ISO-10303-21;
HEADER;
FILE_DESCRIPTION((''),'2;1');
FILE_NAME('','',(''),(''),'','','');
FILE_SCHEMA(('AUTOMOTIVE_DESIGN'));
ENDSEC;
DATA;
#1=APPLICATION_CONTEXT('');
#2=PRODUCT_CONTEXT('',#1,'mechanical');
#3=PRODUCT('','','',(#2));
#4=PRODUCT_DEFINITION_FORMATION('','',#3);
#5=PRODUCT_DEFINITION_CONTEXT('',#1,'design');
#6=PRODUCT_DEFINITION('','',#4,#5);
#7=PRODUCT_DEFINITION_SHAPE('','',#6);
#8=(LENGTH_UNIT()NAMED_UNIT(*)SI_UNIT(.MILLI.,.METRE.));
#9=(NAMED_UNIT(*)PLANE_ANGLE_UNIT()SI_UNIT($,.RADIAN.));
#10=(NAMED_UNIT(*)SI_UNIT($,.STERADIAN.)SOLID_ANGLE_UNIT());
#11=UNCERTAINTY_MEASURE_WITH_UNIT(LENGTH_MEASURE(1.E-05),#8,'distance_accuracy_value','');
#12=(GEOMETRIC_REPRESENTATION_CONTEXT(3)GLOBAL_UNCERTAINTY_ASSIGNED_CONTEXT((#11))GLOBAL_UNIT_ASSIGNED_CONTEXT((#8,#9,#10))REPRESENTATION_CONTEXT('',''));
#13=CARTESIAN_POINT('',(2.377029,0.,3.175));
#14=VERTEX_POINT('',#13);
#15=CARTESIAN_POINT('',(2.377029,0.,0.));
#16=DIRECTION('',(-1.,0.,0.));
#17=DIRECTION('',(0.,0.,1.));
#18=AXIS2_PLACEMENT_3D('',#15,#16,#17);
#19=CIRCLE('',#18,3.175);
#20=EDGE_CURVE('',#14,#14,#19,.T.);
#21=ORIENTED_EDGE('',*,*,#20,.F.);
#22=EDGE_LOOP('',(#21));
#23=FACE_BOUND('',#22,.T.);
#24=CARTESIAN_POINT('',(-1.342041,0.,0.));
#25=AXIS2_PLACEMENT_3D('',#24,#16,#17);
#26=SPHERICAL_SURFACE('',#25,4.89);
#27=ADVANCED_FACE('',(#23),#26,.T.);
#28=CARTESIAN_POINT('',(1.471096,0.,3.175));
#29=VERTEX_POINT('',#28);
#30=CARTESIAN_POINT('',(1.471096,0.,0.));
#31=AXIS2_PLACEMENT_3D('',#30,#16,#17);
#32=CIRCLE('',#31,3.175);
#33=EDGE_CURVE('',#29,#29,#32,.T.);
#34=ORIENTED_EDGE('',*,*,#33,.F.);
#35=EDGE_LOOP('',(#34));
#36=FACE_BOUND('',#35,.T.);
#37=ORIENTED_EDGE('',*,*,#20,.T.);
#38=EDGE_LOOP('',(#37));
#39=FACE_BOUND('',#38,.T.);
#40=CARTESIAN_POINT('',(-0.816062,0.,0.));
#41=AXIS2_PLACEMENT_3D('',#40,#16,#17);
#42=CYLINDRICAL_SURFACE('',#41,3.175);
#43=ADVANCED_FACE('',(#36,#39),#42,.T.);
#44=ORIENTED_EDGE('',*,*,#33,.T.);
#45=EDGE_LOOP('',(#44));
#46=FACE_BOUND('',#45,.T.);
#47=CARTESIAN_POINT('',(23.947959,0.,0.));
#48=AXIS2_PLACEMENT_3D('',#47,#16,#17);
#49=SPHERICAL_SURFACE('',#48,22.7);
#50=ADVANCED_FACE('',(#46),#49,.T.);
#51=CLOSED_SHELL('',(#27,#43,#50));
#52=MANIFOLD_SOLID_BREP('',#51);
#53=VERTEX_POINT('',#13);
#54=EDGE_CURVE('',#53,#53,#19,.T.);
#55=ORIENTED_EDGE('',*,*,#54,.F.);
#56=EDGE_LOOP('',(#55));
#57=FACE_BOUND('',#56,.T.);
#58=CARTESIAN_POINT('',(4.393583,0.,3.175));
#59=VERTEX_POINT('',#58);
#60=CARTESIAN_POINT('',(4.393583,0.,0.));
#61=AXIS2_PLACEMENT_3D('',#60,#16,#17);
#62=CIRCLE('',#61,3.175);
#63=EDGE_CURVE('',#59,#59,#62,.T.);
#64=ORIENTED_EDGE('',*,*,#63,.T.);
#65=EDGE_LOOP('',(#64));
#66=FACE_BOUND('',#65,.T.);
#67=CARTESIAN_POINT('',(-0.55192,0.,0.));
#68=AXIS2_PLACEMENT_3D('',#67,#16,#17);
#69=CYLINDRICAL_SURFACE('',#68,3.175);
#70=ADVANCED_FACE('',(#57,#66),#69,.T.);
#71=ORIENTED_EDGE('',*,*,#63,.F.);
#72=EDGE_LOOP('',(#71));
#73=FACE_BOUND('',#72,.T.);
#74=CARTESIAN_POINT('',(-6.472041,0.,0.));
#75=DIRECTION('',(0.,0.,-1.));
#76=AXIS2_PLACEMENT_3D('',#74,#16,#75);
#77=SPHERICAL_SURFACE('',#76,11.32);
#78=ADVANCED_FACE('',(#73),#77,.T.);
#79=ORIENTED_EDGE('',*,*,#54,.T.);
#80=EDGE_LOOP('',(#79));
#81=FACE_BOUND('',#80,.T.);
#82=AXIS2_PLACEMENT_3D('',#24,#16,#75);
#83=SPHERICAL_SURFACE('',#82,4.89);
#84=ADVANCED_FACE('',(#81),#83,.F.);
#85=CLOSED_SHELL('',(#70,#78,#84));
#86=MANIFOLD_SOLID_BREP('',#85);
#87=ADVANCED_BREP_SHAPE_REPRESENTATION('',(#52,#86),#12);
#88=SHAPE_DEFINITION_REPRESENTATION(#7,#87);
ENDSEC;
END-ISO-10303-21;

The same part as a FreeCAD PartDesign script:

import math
import FreeCAD as App
import Part
import Sketcher

V = App.Vector

doc = App.newDocument("Part")
body = doc.addObject("PartDesign::Body", "Body")

# Sketch on XZ plane
sketch1 = body.newObject("Sketcher::SketchObject", "Sketch")
sketch1.AttachmentSupport = (doc.getObject("XZ_Plane"), [""])
sketch1.MapMode = "FlatFace"
sketch1.addGeometry([
    Part.ArcOfCircle(Part.Circle(V(23.9, 0, 0), V(0, 0, 1), 22.7), math.radians(-180), math.radians(-171.96)),
    Part.LineSegment(V(1.2, 0, 0), V(3.5, 0, 0)),
    Part.ArcOfCircle(Part.Circle(V(-1.3, 0, 0), V(0, 0, 1), 4.9), math.radians(-40), math.radians(0)),
    Part.LineSegment(V(2.4, -3.2, 0), V(1.5, -3.2, 0)),
], False)
sketch1.addConstraint([
    Sketcher.Constraint("Coincident", 0, 1, 1, 1),
    Sketcher.Constraint("Coincident", 1, 2, 2, 2),
    Sketcher.Constraint("Coincident", 2, 1, 3, 1),
    Sketcher.Constraint("Coincident", 3, 2, 0, 2),
    Sketcher.Constraint("Horizontal", 1),
    Sketcher.Constraint("Horizontal", 3),
    Sketcher.Constraint("PointOnObject", 0, 3, -1),
    Sketcher.Constraint("PointOnObject", 2, 3, -1),
    Sketcher.Constraint("PointOnObject", 0, 1, -1),
    Sketcher.Constraint("Radius", 0, 22.7),
    Sketcher.Constraint("Radius", 2, 4.89),
    Sketcher.Constraint("DistanceX", 1, 1, 1, 2, 2.3),
    Sketcher.Constraint("DistanceY", 2, 1, -1, 1, 3.175),
    Sketcher.Constraint("DistanceX", -1, 1, 0, 3, 23.94796),
])
revolution = body.newObject("PartDesign::Revolution", "Revolution")
revolution.Profile = sketch1
revolution.ReferenceAxis = (sketch1, ["H_Axis"])
revolution.Angle = 360
body2 = doc.addObject("PartDesign::Body", "Body001")

# Sketch on XZ plane
sketch2 = body2.newObject("Sketcher::SketchObject", "Sketch001")
sketch2.AttachmentSupport = (doc.getObject("XZ_Plane001"), [""])
sketch2.MapMode = "FlatFace"
sketch2.addGeometry([
    Part.LineSegment(V(4.4, -3.2, 0), V(2.4, -3.2, 0)),
    Part.ArcOfCircle(Part.Circle(V(-1.3, 0, 0), V(0, 0, 1), 4.9), math.radians(-40), math.radians(0)),
    Part.LineSegment(V(3.5, 0, 0), V(4.8, 0, 0)),
    Part.ArcOfCircle(Part.Circle(V(-6.5, 0, 0), V(0, 0, 1), 11.3), math.radians(-16.29), math.radians(0)),
], False)
sketch2.addConstraint([
    Sketcher.Constraint("Coincident", 0, 2, 1, 1),
    Sketcher.Constraint("Coincident", 1, 2, 2, 1),
    Sketcher.Constraint("Coincident", 2, 2, 3, 2),
    Sketcher.Constraint("Coincident", 3, 1, 0, 1),
    Sketcher.Constraint("Horizontal", 0),
    Sketcher.Constraint("Horizontal", 2),
    Sketcher.Constraint("PointOnObject", 1, 3, -1),
    Sketcher.Constraint("PointOnObject", 3, 3, -1),
    Sketcher.Constraint("PointOnObject", 1, 2, -1),
    Sketcher.Constraint("Radius", 1, 4.89),
    Sketcher.Constraint("Radius", 3, 11.32),
    Sketcher.Constraint("DistanceX", 2, 1, 2, 2, 1.3),
    Sketcher.Constraint("DistanceY", 0, 2, -1, 1, 3.175),
    Sketcher.Constraint("DistanceX", 1, 3, -1, 1, 1.342041),
])
revolution2 = body2.newObject("PartDesign::Revolution", "Revolution001")
revolution2.Profile = sketch2
revolution2.ReferenceAxis = (sketch2, ["H_Axis"])
revolution2.Angle = 360

doc.recompute()
